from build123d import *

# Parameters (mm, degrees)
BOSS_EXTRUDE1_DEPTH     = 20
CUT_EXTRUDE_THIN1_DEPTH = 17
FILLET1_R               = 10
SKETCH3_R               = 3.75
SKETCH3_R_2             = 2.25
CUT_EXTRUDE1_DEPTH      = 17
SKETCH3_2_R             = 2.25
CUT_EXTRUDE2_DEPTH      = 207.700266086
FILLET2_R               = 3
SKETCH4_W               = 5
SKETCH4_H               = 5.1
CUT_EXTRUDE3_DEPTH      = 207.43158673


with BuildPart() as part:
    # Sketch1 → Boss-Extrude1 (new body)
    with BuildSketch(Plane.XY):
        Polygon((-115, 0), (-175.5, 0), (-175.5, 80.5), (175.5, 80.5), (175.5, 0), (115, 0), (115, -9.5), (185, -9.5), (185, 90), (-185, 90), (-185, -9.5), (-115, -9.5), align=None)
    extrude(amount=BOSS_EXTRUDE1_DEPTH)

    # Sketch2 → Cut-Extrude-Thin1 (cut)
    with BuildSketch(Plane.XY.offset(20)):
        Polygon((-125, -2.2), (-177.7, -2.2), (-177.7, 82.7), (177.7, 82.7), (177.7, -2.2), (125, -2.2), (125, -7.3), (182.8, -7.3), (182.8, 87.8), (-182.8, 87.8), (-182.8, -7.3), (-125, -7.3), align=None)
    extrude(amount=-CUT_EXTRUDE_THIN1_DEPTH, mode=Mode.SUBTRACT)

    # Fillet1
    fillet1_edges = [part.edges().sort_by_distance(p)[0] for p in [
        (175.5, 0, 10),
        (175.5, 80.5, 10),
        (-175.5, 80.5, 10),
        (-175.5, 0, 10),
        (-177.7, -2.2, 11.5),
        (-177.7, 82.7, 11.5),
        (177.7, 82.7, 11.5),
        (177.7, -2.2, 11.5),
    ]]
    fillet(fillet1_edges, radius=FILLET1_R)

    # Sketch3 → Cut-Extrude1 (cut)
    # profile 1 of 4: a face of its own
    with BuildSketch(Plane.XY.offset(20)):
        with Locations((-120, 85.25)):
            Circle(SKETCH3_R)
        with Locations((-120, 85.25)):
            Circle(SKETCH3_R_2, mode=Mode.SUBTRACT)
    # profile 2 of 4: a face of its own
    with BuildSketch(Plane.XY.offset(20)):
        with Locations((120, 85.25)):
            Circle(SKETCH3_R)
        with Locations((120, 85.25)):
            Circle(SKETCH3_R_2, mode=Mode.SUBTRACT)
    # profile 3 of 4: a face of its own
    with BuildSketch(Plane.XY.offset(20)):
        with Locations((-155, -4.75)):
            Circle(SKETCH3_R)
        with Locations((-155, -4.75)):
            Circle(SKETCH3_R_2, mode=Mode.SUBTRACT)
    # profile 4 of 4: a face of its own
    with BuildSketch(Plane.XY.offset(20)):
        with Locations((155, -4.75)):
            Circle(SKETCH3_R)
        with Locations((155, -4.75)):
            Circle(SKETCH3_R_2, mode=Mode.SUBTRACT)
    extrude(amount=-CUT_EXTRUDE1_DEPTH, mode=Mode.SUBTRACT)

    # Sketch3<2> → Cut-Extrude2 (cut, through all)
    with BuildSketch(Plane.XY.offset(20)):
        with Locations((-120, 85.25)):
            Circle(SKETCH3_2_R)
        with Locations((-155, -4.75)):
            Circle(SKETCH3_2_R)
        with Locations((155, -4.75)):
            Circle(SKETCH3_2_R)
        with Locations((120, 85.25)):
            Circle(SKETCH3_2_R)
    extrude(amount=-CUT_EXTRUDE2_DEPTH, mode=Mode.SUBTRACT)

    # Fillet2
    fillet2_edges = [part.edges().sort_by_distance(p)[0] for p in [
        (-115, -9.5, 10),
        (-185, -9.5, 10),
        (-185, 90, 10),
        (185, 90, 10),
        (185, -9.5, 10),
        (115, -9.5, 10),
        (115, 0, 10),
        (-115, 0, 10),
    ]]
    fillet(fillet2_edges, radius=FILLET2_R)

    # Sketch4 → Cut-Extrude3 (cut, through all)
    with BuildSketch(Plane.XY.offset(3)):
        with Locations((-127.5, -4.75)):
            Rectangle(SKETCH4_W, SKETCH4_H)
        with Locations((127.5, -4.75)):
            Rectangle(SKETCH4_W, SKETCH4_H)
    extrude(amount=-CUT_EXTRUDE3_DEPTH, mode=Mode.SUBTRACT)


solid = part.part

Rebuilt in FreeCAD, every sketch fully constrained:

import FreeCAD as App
import Part
import Sketcher

V = App.Vector


def edges_at(feature, points):
    """Names of the edges that pass closest to the given points."""
    edges = feature.Shape.Edges
    near = lambda p: min(range(len(edges)), key=lambda i: edges[i].distToShape(Part.Vertex(*p))[0])
    return sorted({f"Edge{near(p) + 1}" for p in points})

doc = App.newDocument("Part")
body = doc.addObject("PartDesign::Body", "Body")

# Sketch on XY plane
sketch1 = body.newObject("Sketcher::SketchObject", "Sketch")
sketch1.AttachmentSupport = (doc.getObject("XY_Plane"), [""])
sketch1.MapMode = "FlatFace"
sketch1.addGeometry([
    Part.LineSegment(V(-115, 0, 0), V(-176, 0, 0)),  # 0
    Part.LineSegment(V(-176, 0, 0), V(-176, 80, 0)),  # 1
    Part.LineSegment(V(-176, 80, 0), V(176, 80, 0)),  # 2
    Part.LineSegment(V(176, 80, 0), V(176, 0, 0)),  # 3
    Part.LineSegment(V(176, 0, 0), V(115, 0, 0)),  # 4
    Part.LineSegment(V(115, 0, 0), V(115, -10, 0)),  # 5
    Part.LineSegment(V(115, -10, 0), V(185, -10, 0)),  # 6
    Part.LineSegment(V(185, -10, 0), V(185, 90, 0)),  # 7
    Part.LineSegment(V(185, 90, 0), V(-185, 90, 0)),  # 8
    Part.LineSegment(V(-185, 90, 0), V(-185, -10, 0)),  # 9
    Part.LineSegment(V(-185, -10, 0), V(-115, -10, 0)),  # 10
    Part.LineSegment(V(-115, -10, 0), V(-115, 0, 0)),  # 11
], False)
sketch1.addConstraint([
    Sketcher.Constraint("Coincident", 0, 2, 1, 1),
    Sketcher.Constraint("Coincident", 1, 2, 2, 1),
    Sketcher.Constraint("Coincident", 2, 2, 3, 1),
    Sketcher.Constraint("Coincident", 3, 2, 4, 1),
    Sketcher.Constraint("Coincident", 4, 2, 5, 1),
    Sketcher.Constraint("Coincident", 5, 2, 6, 1),
    Sketcher.Constraint("Coincident", 6, 2, 7, 1),
    Sketcher.Constraint("Coincident", 7, 2, 8, 1),
    Sketcher.Constraint("Coincident", 8, 2, 9, 1),
    Sketcher.Constraint("Coincident", 9, 2, 10, 1),
    Sketcher.Constraint("Coincident", 10, 2, 11, 1),
    Sketcher.Constraint("Coincident", 11, 2, 0, 1),
    Sketcher.Constraint("Horizontal", 0),
    Sketcher.Constraint("Vertical", 1),
    Sketcher.Constraint("Horizontal", 2),
    Sketcher.Constraint("Vertical", 3),
    Sketcher.Constraint("Horizontal", 4),
    Sketcher.Constraint("Vertical", 5),
    Sketcher.Constraint("Horizontal", 6),
    Sketcher.Constraint("Vertical", 7),
    Sketcher.Constraint("Horizontal", 8),
    Sketcher.Constraint("Vertical", 9),
    Sketcher.Constraint("Horizontal", 10),
    Sketcher.Constraint("Vertical", 11),
    Sketcher.Constraint("Symmetric", 0, 2, 3, 2, -1, 1),
    Sketcher.Constraint("Symmetric", 6, 2, 9, 2, -2),
    Sketcher.Constraint("Symmetric", 4, 2, 11, 2, -2),
    Sketcher.Constraint("DistanceX", 2, 1, 2, 2, 351.0),
    Sketcher.Constraint("DistanceX", 6, 1, 6, 2, 70.0),
    Sketcher.Constraint("DistanceX", 8, 2, 8, 1, 370.0),
    Sketcher.Constraint("DistanceY", 1, 1, 1, 2, 80.5),
    Sketcher.Constraint("DistanceY", 5, 2, 5, 1, 9.5),
    Sketcher.Constraint("DistanceY", 7, 1, 7, 2, 99.5),
])
pad1 = body.newObject("PartDesign::Pad", "Pad")
pad1.Profile = sketch1
pad1.Length = 20

# Sketch on XY plane
sketch2 = body.newObject("Sketcher::SketchObject", "Sketch001")
sketch2.AttachmentSupport = (doc.getObject("XY_Plane"), [""])
sketch2.MapMode = "FlatFace"
sketch2.AttachmentOffset = App.Placement(V(0, 0, 20), App.Rotation())
sketch2.addGeometry([
    Part.LineSegment(V(-125, -2, 0), V(-178, -2, 0)),  # 0
    Part.LineSegment(V(-178, -2, 0), V(-178, 83, 0)),  # 1
    Part.LineSegment(V(-178, 83, 0), V(178, 83, 0)),  # 2
    Part.LineSegment(V(178, 83, 0), V(178, -2, 0)),  # 3
    Part.LineSegment(V(178, -2, 0), V(125, -2, 0)),  # 4
    Part.LineSegment(V(125, -2, 0), V(125, -7, 0)),  # 5
    Part.LineSegment(V(125, -7, 0), V(183, -7, 0)),  # 6
    Part.LineSegment(V(183, -7, 0), V(183, 88, 0)),  # 7
    Part.LineSegment(V(183, 88, 0), V(-183, 88, 0)),  # 8
    Part.LineSegment(V(-183, 88, 0), V(-183, -7, 0)),  # 9
    Part.LineSegment(V(-183, -7, 0), V(-125, -7, 0)),  # 10
    Part.LineSegment(V(-125, -7, 0), V(-125, -2, 0)),  # 11
], False)
sketch2.addConstraint([
    Sketcher.Constraint("Coincident", 0, 2, 1, 1),
    Sketcher.Constraint("Coincident", 1, 2, 2, 1),
    Sketcher.Constraint("Coincident", 2, 2, 3, 1),
    Sketcher.Constraint("Coincident", 3, 2, 4, 1),
    Sketcher.Constraint("Coincident", 4, 2, 5, 1),
    Sketcher.Constraint("Coincident", 5, 2, 6, 1),
    Sketcher.Constraint("Coincident", 6, 2, 7, 1),
    Sketcher.Constraint("Coincident", 7, 2, 8, 1),
    Sketcher.Constraint("Coincident", 8, 2, 9, 1),
    Sketcher.Constraint("Coincident", 9, 2, 10, 1),
    Sketcher.Constraint("Coincident", 10, 2, 11, 1),
    Sketcher.Constraint("Coincident", 11, 2, 0, 1),
    Sketcher.Constraint("Horizontal", 0),
    Sketcher.Constraint("Vertical", 1),
    Sketcher.Constraint("Horizontal", 2),
    Sketcher.Constraint("Vertical", 3),
    Sketcher.Constraint("Horizontal", 4),
    Sketcher.Constraint("Vertical", 5),
    Sketcher.Constraint("Horizontal", 6),
    Sketcher.Constraint("Vertical", 7),
    Sketcher.Constraint("Horizontal", 8),
    Sketcher.Constraint("Vertical", 9),
    Sketcher.Constraint("Horizontal", 10),
    Sketcher.Constraint("Vertical", 11),
    Sketcher.Constraint("Symmetric", 0, 2, 3, 2, -2),
    Sketcher.Constraint("Symmetric", 6, 2, 9, 2, -2),
    Sketcher.Constraint("Equal", 0, 4),
    Sketcher.Constraint("DistanceX", 0, 2, 0, 1, 52.7),
    Sketcher.Constraint("DistanceX", 2, 1, 2, 2, 355.4),
    Sketcher.Constraint("DistanceX", 6, 1, 6, 2, 57.8),
    Sketcher.Constraint("DistanceY", 1, 1, 1, 2, 84.9),
    Sketcher.Constraint("DistanceY", 5, 2, 5, 1, 5.1),
    Sketcher.Constraint("DistanceY", 7, 1, 7, 2, 95.1),
    Sketcher.Constraint("DistanceY", 0, 2, -1, 1, 2.2),
])
pocket1 = body.newObject("PartDesign::Pocket", "Pocket")
pocket1.Profile = sketch2
pocket1.Length = 17
doc.recompute()

fillet = body.newObject("PartDesign::Fillet", "Fillet")
fillet.Base = (pocket1, edges_at(pocket1, [
    (175.5, 0, 10),
    (175.5, 80.5, 10),
    (-175.5, 80.5, 10),
    (-175.5, 0, 10),
    (-177.7, -2.2, 11.5),
    (-177.7, 82.7, 11.5),
    (177.7, 82.7, 11.5),
    (177.7, -2.2, 11.5),
]))
fillet.Radius = 10

# Sketch on XY plane
sketch3 = body.newObject("Sketcher::SketchObject", "Sketch002")
sketch3.AttachmentSupport = (doc.getObject("XY_Plane"), [""])
sketch3.MapMode = "FlatFace"
sketch3.AttachmentOffset = App.Placement(V(0, 0, 20), App.Rotation())
sketch3.addGeometry([
    Part.Circle(V(-120, 85.2, 0), V(0, 0, 1), 3.8),  # 0
    Part.Circle(V(-120, 85.2, 0), V(0, 0, 1), 2.2),  # 1
    Part.Circle(V(120, 85.2, 0), V(0, 0, 1), 3.8),  # 2
    Part.Circle(V(120, 85.2, 0), V(0, 0, 1), 2.2),  # 3
    Part.Circle(V(-155, -4.8, 0), V(0, 0, 1), 3.8),  # 4
    Part.Circle(V(-155, -4.8, 0), V(0, 0, 1), 2.2),  # 5
    Part.Circle(V(155, -4.8, 0), V(0, 0, 1), 3.8),  # 6
    Part.Circle(V(155, -4.8, 0), V(0, 0, 1), 2.2),  # 7
], False)
sketch3.addConstraint([
    Sketcher.Constraint("Coincident", 1, 3, 0, 3),
    Sketcher.Constraint("Coincident", 3, 3, 2, 3),
    Sketcher.Constraint("Coincident", 5, 3, 4, 3),
    Sketcher.Constraint("Coincident", 7, 3, 6, 3),
    Sketcher.Constraint("Equal", 0, 2),
    Sketcher.Constraint("Equal", 1, 3),
    Sketcher.Constraint("Equal", 2, 4),
    Sketcher.Constraint("Equal", 3, 5),
    Sketcher.Constraint("Equal", 4, 6),
    Sketcher.Constraint("Equal", 5, 7),
    Sketcher.Constraint("Symmetric", 0, 3, 2, 3, -2),
    Sketcher.Constraint("Symmetric", 4, 3, 6, 3, -2),
    Sketcher.Constraint("Diameter", 0, 7.5),
    Sketcher.Constraint("Diameter", 1, 4.5),
    Sketcher.Constraint("DistanceX", 0, 3, -1, 1, 120.0),
    Sketcher.Constraint("DistanceX", 4, 3, -1, 1, 155.0),
    Sketcher.Constraint("DistanceY", 4, 3, 0, 3, 90.0),
    Sketcher.Constraint("DistanceY", -1, 1, 0, 3, 85.25),
])
pocket2 = body.newObject("PartDesign::Pocket", "Pocket001")
pocket2.Profile = sketch3
pocket2.Length = 17

# Sketch on XY plane
sketch4 = body.newObject("Sketcher::SketchObject", "Sketch003")
sketch4.AttachmentSupport = (doc.getObject("XY_Plane"), [""])
sketch4.MapMode = "FlatFace"
sketch4.AttachmentOffset = App.Placement(V(0, 0, 20), App.Rotation())
sketch4.addGeometry([
    Part.Circle(V(-120, 85.2, 0), V(0, 0, 1), 2.2),
    Part.Circle(V(-155, -4.8, 0), V(0, 0, 1), 2.2),
    Part.Circle(V(155, -4.8, 0), V(0, 0, 1), 2.2),
    Part.Circle(V(120, 85.2, 0), V(0, 0, 1), 2.2),
], False)
sketch4.addConstraint([
    Sketcher.Constraint("Equal", 0, 1),
    Sketcher.Constraint("Equal", 1, 2),
    Sketcher.Constraint("Equal", 2, 3),
    Sketcher.Constraint("Symmetric", 1, 3, 2, 3, -2),
    Sketcher.Constraint("Symmetric", 0, 3, 3, 3, -2),
    Sketcher.Constraint("Diameter", 0, 4.5),
    Sketcher.Constraint("DistanceX", 0, 3, -1, 1, 120.0),
    Sketcher.Constraint("DistanceX", 1, 3, -1, 1, 155.0),
    Sketcher.Constraint("DistanceY", 1, 3, 0, 3, 90.0),
    Sketcher.Constraint("DistanceY", -1, 1, 0, 3, 85.25),
])
pocket3 = body.newObject("PartDesign::Pocket", "Pocket002")
pocket3.Profile = sketch4
pocket3.Type = "ThroughAll"
doc.recompute()

fillet2 = body.newObject("PartDesign::Fillet", "Fillet001")
fillet2.Base = (pocket3, edges_at(pocket3, [
    (-115, -9.5, 10),
    (-185, -9.5, 10),
    (-185, 90, 10),
    (185, 90, 10),
    (185, -9.5, 10),
    (115, -9.5, 10),
    (115, 0, 10),
    (-115, 0, 10),
]))
fillet2.Radius = 3

# Sketch on XY plane
sketch5 = body.newObject("Sketcher::SketchObject", "Sketch004")
sketch5.AttachmentSupport = (doc.getObject("XY_Plane"), [""])
sketch5.MapMode = "FlatFace"
sketch5.AttachmentOffset = App.Placement(V(0, 0, 3), App.Rotation())
sketch5.addGeometry([
    Part.LineSegment(V(-130, -2, 0), V(-130, -7, 0)),  # 0
    Part.LineSegment(V(-130, -7, 0), V(-125, -7, 0)),  # 1
    Part.LineSegment(V(-125, -7, 0), V(-125, -2, 0)),  # 2
    Part.LineSegment(V(-125, -2, 0), V(-130, -2, 0)),  # 3
    Part.LineSegment(V(125, -2, 0), V(125, -7, 0)),  # 4
    Part.LineSegment(V(125, -7, 0), V(130, -7, 0)),  # 5
    Part.LineSegment(V(130, -7, 0), V(130, -2, 0)),  # 6
    Part.LineSegment(V(130, -2, 0), V(125, -2, 0)),  # 7
], False)
sketch5.addConstraint([
    Sketcher.Constraint("Coincident", 0, 2, 1, 1),
    Sketcher.Constraint("Coincident", 1, 2, 2, 1),
    Sketcher.Constraint("Coincident", 2, 2, 3, 1),
    Sketcher.Constraint("Coincident", 3, 2, 0, 1),
    Sketcher.Constraint("Coincident", 4, 2, 5, 1),
    Sketcher.Constraint("Coincident", 5, 2, 6, 1),
    Sketcher.Constraint("Coincident", 6, 2, 7, 1),
    Sketcher.Constraint("Coincident", 7, 2, 4, 1),
    Sketcher.Constraint("Vertical", 0),
    Sketcher.Constraint("Horizontal", 1),
    Sketcher.Constraint("Vertical", 2),
    Sketcher.Constraint("Horizontal", 3),
    Sketcher.Constraint("Vertical", 4),
    Sketcher.Constraint("Horizontal", 5),
    Sketcher.Constraint("Vertical", 6),
    Sketcher.Constraint("Horizontal", 7),
    Sketcher.Constraint("Symmetric", 1, 2, 4, 2, -2),
    Sketcher.Constraint("Symmetric", 3, 2, 6, 2, -2),
    Sketcher.Constraint("DistanceX", 1, 1, 1, 2, 5.0),
    Sketcher.Constraint("DistanceY", 0, 2, 0, 1, 5.1),
    Sketcher.Constraint("DistanceX", 0, 2, -1, 1, 130.0),
    Sketcher.Constraint("DistanceY", 0, 2, -1, 1, 7.3),
])
pocket4 = body.newObject("PartDesign::Pocket", "Pocket003")
pocket4.Profile = sketch5
pocket4.Type = "ThroughAll"

doc.recompute()
